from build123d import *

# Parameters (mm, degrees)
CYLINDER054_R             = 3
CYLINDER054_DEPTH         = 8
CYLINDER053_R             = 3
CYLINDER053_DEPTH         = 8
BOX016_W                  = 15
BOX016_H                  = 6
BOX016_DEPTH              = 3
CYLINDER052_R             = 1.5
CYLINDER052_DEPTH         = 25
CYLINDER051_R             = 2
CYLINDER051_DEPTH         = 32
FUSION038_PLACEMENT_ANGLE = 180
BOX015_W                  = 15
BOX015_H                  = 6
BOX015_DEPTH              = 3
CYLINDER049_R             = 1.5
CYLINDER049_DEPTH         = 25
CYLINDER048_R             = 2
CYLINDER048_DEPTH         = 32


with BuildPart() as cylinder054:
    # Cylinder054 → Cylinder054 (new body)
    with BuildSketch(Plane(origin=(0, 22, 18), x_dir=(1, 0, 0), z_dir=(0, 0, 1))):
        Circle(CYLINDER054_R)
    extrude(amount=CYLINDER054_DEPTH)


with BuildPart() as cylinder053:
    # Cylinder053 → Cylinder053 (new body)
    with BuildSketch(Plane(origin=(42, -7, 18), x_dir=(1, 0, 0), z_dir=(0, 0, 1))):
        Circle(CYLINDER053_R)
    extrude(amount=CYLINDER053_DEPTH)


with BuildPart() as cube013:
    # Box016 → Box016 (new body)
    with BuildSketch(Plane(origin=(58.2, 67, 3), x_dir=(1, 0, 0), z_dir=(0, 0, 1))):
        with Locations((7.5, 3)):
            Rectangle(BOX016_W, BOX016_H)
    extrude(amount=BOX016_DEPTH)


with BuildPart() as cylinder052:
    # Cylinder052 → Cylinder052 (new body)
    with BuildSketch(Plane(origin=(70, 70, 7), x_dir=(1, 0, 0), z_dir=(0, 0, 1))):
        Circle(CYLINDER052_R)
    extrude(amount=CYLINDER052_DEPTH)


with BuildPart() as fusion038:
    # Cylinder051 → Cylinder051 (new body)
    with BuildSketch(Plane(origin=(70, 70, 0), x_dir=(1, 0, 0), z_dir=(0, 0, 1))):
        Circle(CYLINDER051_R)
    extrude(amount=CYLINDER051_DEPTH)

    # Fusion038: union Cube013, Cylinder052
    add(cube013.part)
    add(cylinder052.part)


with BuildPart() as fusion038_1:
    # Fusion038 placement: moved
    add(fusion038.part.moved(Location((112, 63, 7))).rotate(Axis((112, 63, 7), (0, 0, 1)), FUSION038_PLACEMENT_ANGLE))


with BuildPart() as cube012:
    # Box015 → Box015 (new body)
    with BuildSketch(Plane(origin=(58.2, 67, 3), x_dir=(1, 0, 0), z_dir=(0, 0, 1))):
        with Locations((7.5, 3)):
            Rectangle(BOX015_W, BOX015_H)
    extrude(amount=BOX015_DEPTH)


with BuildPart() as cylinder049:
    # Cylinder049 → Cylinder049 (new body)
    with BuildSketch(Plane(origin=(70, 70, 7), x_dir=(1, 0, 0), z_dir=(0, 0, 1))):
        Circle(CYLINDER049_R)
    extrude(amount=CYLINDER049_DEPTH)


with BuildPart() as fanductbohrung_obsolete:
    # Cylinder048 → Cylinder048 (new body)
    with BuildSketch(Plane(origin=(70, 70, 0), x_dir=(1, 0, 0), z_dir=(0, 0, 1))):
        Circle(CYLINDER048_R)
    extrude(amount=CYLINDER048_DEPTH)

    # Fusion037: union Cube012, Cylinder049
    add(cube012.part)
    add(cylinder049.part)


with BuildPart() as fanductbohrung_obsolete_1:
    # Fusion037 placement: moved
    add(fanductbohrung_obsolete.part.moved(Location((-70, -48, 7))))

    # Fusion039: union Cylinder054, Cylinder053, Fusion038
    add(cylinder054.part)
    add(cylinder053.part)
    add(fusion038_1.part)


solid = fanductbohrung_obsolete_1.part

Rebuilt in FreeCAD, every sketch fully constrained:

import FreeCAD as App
import Part
import Sketcher
from FreeCAD import Vector


def add_polygon(sketch, points):
    """Adds a closed chain of lines whose ends are joined by coincident constraints."""
    first, n = sketch.GeometryCount, len(points)
    for a, b in zip(points, points[1:] + points[:1]):
        sketch.addGeometry(Part.LineSegment(App.Vector(*a, 0), App.Vector(*b, 0)), False)
    for i in range(n):
        sketch.addConstraint(Sketcher.Constraint("Coincident", first + i, 2, first + (i + 1) % n, 1))

doc = App.newDocument("Part")
body = doc.addObject("PartDesign::Body", "Body")

# Sketch on XY plane
sketch1 = doc.addObject("Sketcher::SketchObject", "Sketch")
body.addObject(sketch1)
sketch1.AttachmentSupport = (doc.XY_Plane, [""])
sketch1.MapMode = "FlatFace"
sketch1.AttachmentOffset = App.Placement(Vector(0, 0, 18), App.Rotation())
sketch1.addGeometry(Part.Circle(Vector(0, 22, 0), Vector(0, 0, 1), 3), False)
sketch1.addConstraint([
    Sketcher.Constraint("PointOnObject", 0, 3, -2),
    Sketcher.Constraint("Diameter", 0, 6.0),
    Sketcher.Constraint("DistanceY", -1, 1, 0, 3, 22.0),
])
pad1 = doc.addObject("PartDesign::Pad", "Pad")
body.addObject(pad1)
pad1.Profile = sketch1
pad1.Length = 8
body2 = doc.addObject("PartDesign::Body", "Body001")

# Sketch on XY plane
sketch2 = doc.addObject("Sketcher::SketchObject", "Sketch001")
body2.addObject(sketch2)
sketch2.AttachmentSupport = (doc.getObject("XY_Plane001"), [""])
sketch2.MapMode = "FlatFace"
sketch2.AttachmentOffset = App.Placement(Vector(0, 0, 18), App.Rotation())
sketch2.addGeometry(Part.Circle(Vector(42, -7, 0), Vector(0, 0, 1), 3), False)
sketch2.addConstraint([
    Sketcher.Constraint("Diameter", 0, 6.0),
    Sketcher.Constraint("DistanceX", -1, 1, 0, 3, 42.0),
    Sketcher.Constraint("DistanceY", 0, 3, -1, 1, 7.0),
])
pad2 = doc.addObject("PartDesign::Pad", "Pad001")
body2.addObject(pad2)
pad2.Profile = sketch2
pad2.Length = 8
body3 = doc.addObject("PartDesign::Body", "Body002")

# Sketch on XY plane
sketch3 = doc.addObject("Sketcher::SketchObject", "Sketch002")
body3.addObject(sketch3)
sketch3.AttachmentSupport = (doc.getObject("XY_Plane002"), [""])
sketch3.MapMode = "FlatFace"
sketch3.AttachmentOffset = App.Placement(Vector(0, 0, 3), App.Rotation())
add_polygon(sketch3, [(58, 73), (58, 67), (73, 67), (73, 73)])  # lines 0-3
sketch3.addConstraint([
    Sketcher.Constraint("Vertical", 0),
    Sketcher.Constraint("Horizontal", 1),
    Sketcher.Constraint("Vertical", 2),
    Sketcher.Constraint("Horizontal", 3),
    Sketcher.Constraint("DistanceX", 1, 1, 1, 2, 15.0),
    Sketcher.Constraint("DistanceY", 0, 2, 0, 1, 6.0),
    Sketcher.Constraint("DistanceY", -1, 1, 0, 2, 67.0),
    Sketcher.Constraint("DistanceX", -1, 1, 0, 2, 58.2),
])
pad3 = doc.addObject("PartDesign::Pad", "Pad002")
body3.addObject(pad3)
pad3.Profile = sketch3
pad3.Length = 3
body4 = doc.addObject("PartDesign::Body", "Body003")

# Sketch on XY plane
sketch4 = doc.addObject("Sketcher::SketchObject", "Sketch003")
body4.addObject(sketch4)
sketch4.AttachmentSupport = (doc.getObject("XY_Plane003"), [""])
sketch4.MapMode = "FlatFace"
sketch4.AttachmentOffset = App.Placement(Vector(0, 0, 7), App.Rotation())
sketch4.addGeometry(Part.Circle(Vector(70, 70, 0), Vector(0, 0, 1), 1.5), False)
sketch4.addConstraint([
    Sketcher.Constraint("Diameter", 0, 3.0),
    Sketcher.Constraint("DistanceX", -1, 1, 0, 3, 70.0),
    Sketcher.Constraint("DistanceY", -1, 1, 0, 3, 70.0),
])
pad4 = doc.addObject("PartDesign::Pad", "Pad003")
body4.addObject(pad4)
pad4.Profile = sketch4
pad4.Length = 25
body5 = doc.addObject("PartDesign::Body", "Body004")

# Sketch on XY plane
sketch5 = doc.addObject("Sketcher::SketchObject", "Sketch004")
body5.addObject(sketch5)
sketch5.AttachmentSupport = (doc.getObject("XY_Plane004"), [""])
sketch5.MapMode = "FlatFace"
sketch5.addGeometry(Part.Circle(Vector(70, 70, 0), Vector(0, 0, 1), 2), False)
sketch5.addConstraint([
    Sketcher.Constraint("Diameter", 0, 4.0),
    Sketcher.Constraint("DistanceX", -1, 1, 0, 3, 70.0),
    Sketcher.Constraint("DistanceY", -1, 1, 0, 3, 70.0),
])
pad5 = doc.addObject("PartDesign::Pad", "Pad004")
body5.addObject(pad5)
pad5.Profile = sketch5
pad5.Length = 32
doc.recompute()

boolean = doc.addObject("PartDesign::Boolean", "Boolean")
body5.addObject(boolean)
boolean.Type = "Fuse"
boolean.addObjects([body3])
doc.recompute()

boolean2 = doc.addObject("PartDesign::Boolean", "Boolean001")
body5.addObject(boolean2)
boolean2.Type = "Fuse"
boolean2.addObjects([body4])
body6 = doc.addObject("PartDesign::Body", "Body005")
doc.recompute()

body5.Placement = App.Placement(Vector(112, 63, 7), App.Rotation(Vector(0, 0, 1), 180))
boolean3 = doc.addObject("PartDesign::Boolean", "Boolean002")
body6.addObject(boolean3)
boolean3.Type = "Fuse"
boolean3.addObjects([body5])
body7 = doc.addObject("PartDesign::Body", "Body006")

# Sketch on XY plane
sketch6 = doc.addObject("Sketcher::SketchObject", "Sketch005")
body7.addObject(sketch6)
sketch6.AttachmentSupport = (doc.getObject("XY_Plane006"), [""])
sketch6.MapMode = "FlatFace"
sketch6.AttachmentOffset = App.Placement(Vector(0, 0, 3), App.Rotation())
add_polygon(sketch6, [(58, 73), (58, 67), (73, 67), (73, 73)])  # lines 0-3
sketch6.addConstraint([
    Sketcher.Constraint("Vertical", 0),
    Sketcher.Constraint("Horizontal", 1),
    Sketcher.Constraint("Vertical", 2),
    Sketcher.Constraint("Horizontal", 3),
    Sketcher.Constraint("DistanceX", 1, 1, 1, 2, 15.0),
    Sketcher.Constraint("DistanceY", 0, 2, 0, 1, 6.0),
    Sketcher.Constraint("DistanceY", -1, 1, 0, 2, 67.0),
    Sketcher.Constraint("DistanceX", -1, 1, 0, 2, 58.2),
])
pad6 = doc.addObject("PartDesign::Pad", "Pad005")
body7.addObject(pad6)
pad6.Profile = sketch6
pad6.Length = 3
body8 = doc.addObject("PartDesign::Body", "Body007")

# Sketch on XY plane
sketch7 = doc.addObject("Sketcher::SketchObject", "Sketch006")
body8.addObject(sketch7)
sketch7.AttachmentSupport = (doc.getObject("XY_Plane007"), [""])
sketch7.MapMode = "FlatFace"
sketch7.AttachmentOffset = App.Placement(Vector(0, 0, 7), App.Rotation())
sketch7.addGeometry(Part.Circle(Vector(70, 70, 0), Vector(0, 0, 1), 1.5), False)
sketch7.addConstraint([
    Sketcher.Constraint("Diameter", 0, 3.0),
    Sketcher.Constraint("DistanceX", -1, 1, 0, 3, 70.0),
    Sketcher.Constraint("DistanceY", -1, 1, 0, 3, 70.0),
])
pad7 = doc.addObject("PartDesign::Pad", "Pad006")
body8.addObject(pad7)
pad7.Profile = sketch7
pad7.Length = 25
body9 = doc.addObject("PartDesign::Body", "Body008")

# Sketch on XY plane
sketch8 = doc.addObject("Sketcher::SketchObject", "Sketch007")
body9.addObject(sketch8)
sketch8.AttachmentSupport = (doc.getObject("XY_Plane008"), [""])
sketch8.MapMode = "FlatFace"
sketch8.addGeometry(Part.Circle(Vector(70, 70, 0), Vector(0, 0, 1), 2), False)
sketch8.addConstraint([
    Sketcher.Constraint("Diameter", 0, 4.0),
    Sketcher.Constraint("DistanceX", -1, 1, 0, 3, 70.0),
    Sketcher.Constraint("DistanceY", -1, 1, 0, 3, 70.0),
])
pad8 = doc.addObject("PartDesign::Pad", "Pad007")
body9.addObject(pad8)
pad8.Profile = sketch8
pad8.Length = 32
doc.recompute()

boolean4 = doc.addObject("PartDesign::Boolean", "Boolean003")
body9.addObject(boolean4)
boolean4.Type = "Fuse"
boolean4.addObjects([body7])
doc.recompute()

boolean5 = doc.addObject("PartDesign::Boolean", "Boolean004")
body9.addObject(boolean5)
boolean5.Type = "Fuse"
boolean5.addObjects([body8])
body10 = doc.addObject("PartDesign::Body", "Body009")
body10.AllowCompound = True
doc.recompute()

body9.Placement = App.Placement(Vector(-70, -48, 7), App.Rotation(Vector(0, 0, 1), 0))
boolean6 = doc.addObject("PartDesign::Boolean", "Boolean005")
body10.addObject(boolean6)
boolean6.Type = "Fuse"
boolean6.addObjects([body9])
doc.recompute()

boolean7 = doc.addObject("PartDesign::Boolean", "Boolean006")
body10.addObject(boolean7)
boolean7.Type = "Fuse"
boolean7.addObjects([body])
doc.recompute()

boolean8 = doc.addObject("PartDesign::Boolean", "Boolean007")
body10.addObject(boolean8)
boolean8.Type = "Fuse"
boolean8.addObjects([body2])
doc.recompute()

boolean9 = doc.addObject("PartDesign::Boolean", "Boolean008")
body10.addObject(boolean9)
boolean9.Type = "Fuse"
boolean9.addObjects([body6])

doc.recompute()
